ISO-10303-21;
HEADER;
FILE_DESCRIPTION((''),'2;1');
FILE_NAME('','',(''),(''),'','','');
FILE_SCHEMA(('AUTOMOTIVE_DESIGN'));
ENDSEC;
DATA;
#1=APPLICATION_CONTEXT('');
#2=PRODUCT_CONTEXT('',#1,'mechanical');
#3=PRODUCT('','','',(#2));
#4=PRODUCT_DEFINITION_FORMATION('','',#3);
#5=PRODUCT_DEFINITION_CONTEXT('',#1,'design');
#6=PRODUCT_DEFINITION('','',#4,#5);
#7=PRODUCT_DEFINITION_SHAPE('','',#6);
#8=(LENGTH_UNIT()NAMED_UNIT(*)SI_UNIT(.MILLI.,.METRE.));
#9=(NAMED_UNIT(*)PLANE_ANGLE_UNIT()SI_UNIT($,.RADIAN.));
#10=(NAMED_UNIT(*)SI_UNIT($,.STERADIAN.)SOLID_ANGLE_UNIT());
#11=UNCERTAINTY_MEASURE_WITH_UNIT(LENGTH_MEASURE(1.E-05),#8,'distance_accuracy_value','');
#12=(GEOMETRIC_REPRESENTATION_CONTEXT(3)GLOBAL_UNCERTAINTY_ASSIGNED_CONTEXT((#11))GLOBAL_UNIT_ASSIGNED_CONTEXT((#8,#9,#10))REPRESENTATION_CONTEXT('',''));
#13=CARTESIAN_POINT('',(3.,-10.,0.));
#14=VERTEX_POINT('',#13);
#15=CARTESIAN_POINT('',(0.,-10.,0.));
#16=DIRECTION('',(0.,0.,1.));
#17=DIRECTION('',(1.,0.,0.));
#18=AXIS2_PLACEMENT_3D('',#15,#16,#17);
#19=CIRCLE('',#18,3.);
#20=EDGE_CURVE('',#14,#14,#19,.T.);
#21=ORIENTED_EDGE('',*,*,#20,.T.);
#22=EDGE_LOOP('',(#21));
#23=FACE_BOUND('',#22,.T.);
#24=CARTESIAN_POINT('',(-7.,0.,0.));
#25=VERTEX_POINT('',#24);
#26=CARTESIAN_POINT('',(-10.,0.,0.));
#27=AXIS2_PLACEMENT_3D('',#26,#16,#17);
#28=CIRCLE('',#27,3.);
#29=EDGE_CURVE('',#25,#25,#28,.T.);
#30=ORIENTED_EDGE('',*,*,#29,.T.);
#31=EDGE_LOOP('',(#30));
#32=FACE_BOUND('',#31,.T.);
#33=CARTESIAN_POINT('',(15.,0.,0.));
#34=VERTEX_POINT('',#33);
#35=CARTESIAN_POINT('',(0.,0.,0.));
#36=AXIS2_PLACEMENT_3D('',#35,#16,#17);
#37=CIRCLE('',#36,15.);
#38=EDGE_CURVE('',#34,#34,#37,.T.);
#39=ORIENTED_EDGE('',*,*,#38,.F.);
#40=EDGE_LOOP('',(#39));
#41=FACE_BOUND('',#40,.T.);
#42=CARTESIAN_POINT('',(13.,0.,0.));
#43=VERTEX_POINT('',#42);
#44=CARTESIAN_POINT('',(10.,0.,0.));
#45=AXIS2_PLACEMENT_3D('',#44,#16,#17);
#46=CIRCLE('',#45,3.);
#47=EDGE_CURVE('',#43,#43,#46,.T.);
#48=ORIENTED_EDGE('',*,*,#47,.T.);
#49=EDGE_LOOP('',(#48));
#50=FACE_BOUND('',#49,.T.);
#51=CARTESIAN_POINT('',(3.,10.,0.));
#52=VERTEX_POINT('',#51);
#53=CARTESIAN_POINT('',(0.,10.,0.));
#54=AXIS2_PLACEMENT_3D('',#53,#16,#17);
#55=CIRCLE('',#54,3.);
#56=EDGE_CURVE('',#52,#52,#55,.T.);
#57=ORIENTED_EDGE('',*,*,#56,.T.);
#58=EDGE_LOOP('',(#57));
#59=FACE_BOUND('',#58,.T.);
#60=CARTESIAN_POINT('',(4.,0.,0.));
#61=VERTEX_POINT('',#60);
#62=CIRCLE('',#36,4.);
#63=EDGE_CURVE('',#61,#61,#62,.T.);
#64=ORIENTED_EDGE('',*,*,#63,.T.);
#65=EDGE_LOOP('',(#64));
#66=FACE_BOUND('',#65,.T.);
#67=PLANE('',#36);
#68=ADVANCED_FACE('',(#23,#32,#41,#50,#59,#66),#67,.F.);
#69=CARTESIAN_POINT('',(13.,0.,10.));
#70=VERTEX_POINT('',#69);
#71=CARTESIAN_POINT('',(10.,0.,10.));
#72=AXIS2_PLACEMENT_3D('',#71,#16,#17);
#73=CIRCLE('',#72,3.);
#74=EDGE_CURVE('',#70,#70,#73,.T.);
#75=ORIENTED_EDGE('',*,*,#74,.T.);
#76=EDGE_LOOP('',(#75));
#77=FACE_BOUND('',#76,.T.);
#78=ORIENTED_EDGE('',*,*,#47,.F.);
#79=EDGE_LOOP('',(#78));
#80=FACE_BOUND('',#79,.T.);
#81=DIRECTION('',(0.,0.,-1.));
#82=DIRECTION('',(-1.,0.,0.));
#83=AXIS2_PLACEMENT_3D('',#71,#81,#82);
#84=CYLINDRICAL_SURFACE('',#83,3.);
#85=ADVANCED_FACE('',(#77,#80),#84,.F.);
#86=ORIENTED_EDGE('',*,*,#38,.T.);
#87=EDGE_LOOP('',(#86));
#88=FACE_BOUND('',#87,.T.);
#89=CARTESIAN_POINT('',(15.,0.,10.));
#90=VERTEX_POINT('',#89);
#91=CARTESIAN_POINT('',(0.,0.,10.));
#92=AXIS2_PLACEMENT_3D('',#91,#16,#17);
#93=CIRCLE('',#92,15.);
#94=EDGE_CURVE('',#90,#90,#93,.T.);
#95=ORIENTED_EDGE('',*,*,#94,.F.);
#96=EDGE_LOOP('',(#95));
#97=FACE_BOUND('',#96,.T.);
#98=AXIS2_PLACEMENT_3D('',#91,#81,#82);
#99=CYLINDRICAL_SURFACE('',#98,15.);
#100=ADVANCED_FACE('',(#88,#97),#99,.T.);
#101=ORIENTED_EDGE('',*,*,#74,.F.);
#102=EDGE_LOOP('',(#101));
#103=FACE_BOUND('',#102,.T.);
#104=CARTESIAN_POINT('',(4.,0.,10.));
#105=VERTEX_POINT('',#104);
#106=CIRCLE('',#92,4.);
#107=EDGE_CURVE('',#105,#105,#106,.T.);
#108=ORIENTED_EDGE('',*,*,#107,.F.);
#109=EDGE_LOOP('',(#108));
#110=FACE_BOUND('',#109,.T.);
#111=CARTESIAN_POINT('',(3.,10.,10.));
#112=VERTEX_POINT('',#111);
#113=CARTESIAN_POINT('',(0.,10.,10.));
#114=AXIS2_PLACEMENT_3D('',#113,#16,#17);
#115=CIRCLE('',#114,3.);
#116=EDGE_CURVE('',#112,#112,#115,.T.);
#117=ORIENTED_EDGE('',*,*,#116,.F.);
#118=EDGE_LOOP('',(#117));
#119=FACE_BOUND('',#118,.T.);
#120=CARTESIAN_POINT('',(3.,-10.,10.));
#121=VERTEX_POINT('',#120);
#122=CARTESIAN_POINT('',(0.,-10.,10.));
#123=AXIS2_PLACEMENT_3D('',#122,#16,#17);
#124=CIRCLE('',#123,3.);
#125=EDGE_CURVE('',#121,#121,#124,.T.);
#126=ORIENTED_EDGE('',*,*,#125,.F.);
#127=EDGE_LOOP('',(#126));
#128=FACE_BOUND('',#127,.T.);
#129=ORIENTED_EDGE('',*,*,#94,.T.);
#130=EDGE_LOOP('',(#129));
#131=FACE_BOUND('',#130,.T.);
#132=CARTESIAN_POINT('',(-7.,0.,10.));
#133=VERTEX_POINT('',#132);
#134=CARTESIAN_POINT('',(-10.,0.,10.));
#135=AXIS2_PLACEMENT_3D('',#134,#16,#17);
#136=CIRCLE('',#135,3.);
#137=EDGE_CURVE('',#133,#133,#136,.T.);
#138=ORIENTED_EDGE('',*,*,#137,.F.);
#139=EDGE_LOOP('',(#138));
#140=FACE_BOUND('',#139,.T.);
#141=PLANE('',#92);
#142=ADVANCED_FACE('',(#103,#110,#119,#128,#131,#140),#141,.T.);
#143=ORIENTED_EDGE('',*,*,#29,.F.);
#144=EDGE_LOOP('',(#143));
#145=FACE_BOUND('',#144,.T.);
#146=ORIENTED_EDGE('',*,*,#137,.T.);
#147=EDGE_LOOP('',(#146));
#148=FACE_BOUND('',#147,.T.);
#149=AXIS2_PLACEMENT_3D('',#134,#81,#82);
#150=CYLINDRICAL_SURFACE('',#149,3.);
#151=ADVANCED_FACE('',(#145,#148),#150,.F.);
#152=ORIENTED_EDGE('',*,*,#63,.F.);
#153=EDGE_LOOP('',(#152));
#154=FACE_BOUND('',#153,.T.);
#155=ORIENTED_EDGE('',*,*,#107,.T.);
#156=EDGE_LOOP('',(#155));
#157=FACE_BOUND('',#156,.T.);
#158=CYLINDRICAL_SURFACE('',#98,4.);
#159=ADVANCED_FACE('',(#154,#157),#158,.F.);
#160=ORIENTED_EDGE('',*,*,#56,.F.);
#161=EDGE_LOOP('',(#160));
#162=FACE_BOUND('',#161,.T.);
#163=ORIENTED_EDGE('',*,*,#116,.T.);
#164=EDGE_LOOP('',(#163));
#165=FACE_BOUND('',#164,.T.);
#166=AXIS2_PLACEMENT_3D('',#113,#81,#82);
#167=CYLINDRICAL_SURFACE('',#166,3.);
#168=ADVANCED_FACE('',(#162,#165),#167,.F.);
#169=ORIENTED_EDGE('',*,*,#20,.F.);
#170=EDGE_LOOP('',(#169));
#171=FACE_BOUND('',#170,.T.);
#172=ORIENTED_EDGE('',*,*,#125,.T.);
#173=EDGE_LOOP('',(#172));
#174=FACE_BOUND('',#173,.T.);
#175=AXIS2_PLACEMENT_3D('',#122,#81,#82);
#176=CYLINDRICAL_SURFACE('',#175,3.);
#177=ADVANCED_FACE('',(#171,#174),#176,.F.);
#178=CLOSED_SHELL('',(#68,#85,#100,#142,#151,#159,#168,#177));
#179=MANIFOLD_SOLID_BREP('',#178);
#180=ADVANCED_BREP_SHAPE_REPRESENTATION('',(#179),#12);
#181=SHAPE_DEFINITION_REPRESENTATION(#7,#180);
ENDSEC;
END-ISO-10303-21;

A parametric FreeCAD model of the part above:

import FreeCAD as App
import Part
import Sketcher
Q = App.Units.Quantity

doc = App.newDocument("Part")
body = doc.addObject("PartDesign::Body", "Body")

# Sketch on XY plane
sketch1 = body.newObject("Sketcher::SketchObject", "Sketch")
sketch1.AttachmentSupport = (doc.getObject("XY_Plane"), [""])
sketch1.MapMode = "FlatFace"
sketch1.addGeometry([
    Part.Circle(App.Vector(0, 0, 0), App.Vector(0, 0, 1), 15),  # 0
    Part.Circle(App.Vector(0, -10, 0), App.Vector(0, 0, 1), 3),  # 1
    Part.Circle(App.Vector(-10, 0, 0), App.Vector(0, 0, 1), 3),  # 2
    Part.Circle(App.Vector(0, 0, 0), App.Vector(0, 0, 1), 4),  # 3
    Part.Circle(App.Vector(10, 0, 0), App.Vector(0, 0, 1), 3),  # 4
    Part.Circle(App.Vector(0, 10, 0), App.Vector(0, 0, 1), 3),  # 5
], False)
sketch1.addConstraint([
    Sketcher.Constraint("Coincident", 0, 3, -1, 1),
    Sketcher.Constraint("Coincident", 3, 3, -1, 1),
    Sketcher.Constraint("Equal", 1, 2),
    Sketcher.Constraint("Equal", 2, 4),
    Sketcher.Constraint("Equal", 4, 5),
    Sketcher.Constraint("Symmetric", 2, 3, 4, 3, -1, 1),
    Sketcher.Constraint("Symmetric", 1, 3, 5, 3, -1, 1),
    Sketcher.Constraint("PointOnObject", 1, 3, -2),
    Sketcher.Constraint("PointOnObject", 2, 3, -1),
    Sketcher.Constraint("Diameter", 0, Q("30 mm")),
    Sketcher.Constraint("Diameter", 1, Q("6 mm")),
    Sketcher.Constraint("Diameter", 3, Q("8 mm")),
    Sketcher.Constraint("DistanceY", 1, 3, -1, 1, Q("10 mm")),
    Sketcher.Constraint("DistanceX", 2, 3, -1, 1, Q("10 mm")),
])
pad1 = body.newObject("PartDesign::Pad", "Pad")
pad1.Profile = sketch1
pad1.Length = 10

doc.recompute()
